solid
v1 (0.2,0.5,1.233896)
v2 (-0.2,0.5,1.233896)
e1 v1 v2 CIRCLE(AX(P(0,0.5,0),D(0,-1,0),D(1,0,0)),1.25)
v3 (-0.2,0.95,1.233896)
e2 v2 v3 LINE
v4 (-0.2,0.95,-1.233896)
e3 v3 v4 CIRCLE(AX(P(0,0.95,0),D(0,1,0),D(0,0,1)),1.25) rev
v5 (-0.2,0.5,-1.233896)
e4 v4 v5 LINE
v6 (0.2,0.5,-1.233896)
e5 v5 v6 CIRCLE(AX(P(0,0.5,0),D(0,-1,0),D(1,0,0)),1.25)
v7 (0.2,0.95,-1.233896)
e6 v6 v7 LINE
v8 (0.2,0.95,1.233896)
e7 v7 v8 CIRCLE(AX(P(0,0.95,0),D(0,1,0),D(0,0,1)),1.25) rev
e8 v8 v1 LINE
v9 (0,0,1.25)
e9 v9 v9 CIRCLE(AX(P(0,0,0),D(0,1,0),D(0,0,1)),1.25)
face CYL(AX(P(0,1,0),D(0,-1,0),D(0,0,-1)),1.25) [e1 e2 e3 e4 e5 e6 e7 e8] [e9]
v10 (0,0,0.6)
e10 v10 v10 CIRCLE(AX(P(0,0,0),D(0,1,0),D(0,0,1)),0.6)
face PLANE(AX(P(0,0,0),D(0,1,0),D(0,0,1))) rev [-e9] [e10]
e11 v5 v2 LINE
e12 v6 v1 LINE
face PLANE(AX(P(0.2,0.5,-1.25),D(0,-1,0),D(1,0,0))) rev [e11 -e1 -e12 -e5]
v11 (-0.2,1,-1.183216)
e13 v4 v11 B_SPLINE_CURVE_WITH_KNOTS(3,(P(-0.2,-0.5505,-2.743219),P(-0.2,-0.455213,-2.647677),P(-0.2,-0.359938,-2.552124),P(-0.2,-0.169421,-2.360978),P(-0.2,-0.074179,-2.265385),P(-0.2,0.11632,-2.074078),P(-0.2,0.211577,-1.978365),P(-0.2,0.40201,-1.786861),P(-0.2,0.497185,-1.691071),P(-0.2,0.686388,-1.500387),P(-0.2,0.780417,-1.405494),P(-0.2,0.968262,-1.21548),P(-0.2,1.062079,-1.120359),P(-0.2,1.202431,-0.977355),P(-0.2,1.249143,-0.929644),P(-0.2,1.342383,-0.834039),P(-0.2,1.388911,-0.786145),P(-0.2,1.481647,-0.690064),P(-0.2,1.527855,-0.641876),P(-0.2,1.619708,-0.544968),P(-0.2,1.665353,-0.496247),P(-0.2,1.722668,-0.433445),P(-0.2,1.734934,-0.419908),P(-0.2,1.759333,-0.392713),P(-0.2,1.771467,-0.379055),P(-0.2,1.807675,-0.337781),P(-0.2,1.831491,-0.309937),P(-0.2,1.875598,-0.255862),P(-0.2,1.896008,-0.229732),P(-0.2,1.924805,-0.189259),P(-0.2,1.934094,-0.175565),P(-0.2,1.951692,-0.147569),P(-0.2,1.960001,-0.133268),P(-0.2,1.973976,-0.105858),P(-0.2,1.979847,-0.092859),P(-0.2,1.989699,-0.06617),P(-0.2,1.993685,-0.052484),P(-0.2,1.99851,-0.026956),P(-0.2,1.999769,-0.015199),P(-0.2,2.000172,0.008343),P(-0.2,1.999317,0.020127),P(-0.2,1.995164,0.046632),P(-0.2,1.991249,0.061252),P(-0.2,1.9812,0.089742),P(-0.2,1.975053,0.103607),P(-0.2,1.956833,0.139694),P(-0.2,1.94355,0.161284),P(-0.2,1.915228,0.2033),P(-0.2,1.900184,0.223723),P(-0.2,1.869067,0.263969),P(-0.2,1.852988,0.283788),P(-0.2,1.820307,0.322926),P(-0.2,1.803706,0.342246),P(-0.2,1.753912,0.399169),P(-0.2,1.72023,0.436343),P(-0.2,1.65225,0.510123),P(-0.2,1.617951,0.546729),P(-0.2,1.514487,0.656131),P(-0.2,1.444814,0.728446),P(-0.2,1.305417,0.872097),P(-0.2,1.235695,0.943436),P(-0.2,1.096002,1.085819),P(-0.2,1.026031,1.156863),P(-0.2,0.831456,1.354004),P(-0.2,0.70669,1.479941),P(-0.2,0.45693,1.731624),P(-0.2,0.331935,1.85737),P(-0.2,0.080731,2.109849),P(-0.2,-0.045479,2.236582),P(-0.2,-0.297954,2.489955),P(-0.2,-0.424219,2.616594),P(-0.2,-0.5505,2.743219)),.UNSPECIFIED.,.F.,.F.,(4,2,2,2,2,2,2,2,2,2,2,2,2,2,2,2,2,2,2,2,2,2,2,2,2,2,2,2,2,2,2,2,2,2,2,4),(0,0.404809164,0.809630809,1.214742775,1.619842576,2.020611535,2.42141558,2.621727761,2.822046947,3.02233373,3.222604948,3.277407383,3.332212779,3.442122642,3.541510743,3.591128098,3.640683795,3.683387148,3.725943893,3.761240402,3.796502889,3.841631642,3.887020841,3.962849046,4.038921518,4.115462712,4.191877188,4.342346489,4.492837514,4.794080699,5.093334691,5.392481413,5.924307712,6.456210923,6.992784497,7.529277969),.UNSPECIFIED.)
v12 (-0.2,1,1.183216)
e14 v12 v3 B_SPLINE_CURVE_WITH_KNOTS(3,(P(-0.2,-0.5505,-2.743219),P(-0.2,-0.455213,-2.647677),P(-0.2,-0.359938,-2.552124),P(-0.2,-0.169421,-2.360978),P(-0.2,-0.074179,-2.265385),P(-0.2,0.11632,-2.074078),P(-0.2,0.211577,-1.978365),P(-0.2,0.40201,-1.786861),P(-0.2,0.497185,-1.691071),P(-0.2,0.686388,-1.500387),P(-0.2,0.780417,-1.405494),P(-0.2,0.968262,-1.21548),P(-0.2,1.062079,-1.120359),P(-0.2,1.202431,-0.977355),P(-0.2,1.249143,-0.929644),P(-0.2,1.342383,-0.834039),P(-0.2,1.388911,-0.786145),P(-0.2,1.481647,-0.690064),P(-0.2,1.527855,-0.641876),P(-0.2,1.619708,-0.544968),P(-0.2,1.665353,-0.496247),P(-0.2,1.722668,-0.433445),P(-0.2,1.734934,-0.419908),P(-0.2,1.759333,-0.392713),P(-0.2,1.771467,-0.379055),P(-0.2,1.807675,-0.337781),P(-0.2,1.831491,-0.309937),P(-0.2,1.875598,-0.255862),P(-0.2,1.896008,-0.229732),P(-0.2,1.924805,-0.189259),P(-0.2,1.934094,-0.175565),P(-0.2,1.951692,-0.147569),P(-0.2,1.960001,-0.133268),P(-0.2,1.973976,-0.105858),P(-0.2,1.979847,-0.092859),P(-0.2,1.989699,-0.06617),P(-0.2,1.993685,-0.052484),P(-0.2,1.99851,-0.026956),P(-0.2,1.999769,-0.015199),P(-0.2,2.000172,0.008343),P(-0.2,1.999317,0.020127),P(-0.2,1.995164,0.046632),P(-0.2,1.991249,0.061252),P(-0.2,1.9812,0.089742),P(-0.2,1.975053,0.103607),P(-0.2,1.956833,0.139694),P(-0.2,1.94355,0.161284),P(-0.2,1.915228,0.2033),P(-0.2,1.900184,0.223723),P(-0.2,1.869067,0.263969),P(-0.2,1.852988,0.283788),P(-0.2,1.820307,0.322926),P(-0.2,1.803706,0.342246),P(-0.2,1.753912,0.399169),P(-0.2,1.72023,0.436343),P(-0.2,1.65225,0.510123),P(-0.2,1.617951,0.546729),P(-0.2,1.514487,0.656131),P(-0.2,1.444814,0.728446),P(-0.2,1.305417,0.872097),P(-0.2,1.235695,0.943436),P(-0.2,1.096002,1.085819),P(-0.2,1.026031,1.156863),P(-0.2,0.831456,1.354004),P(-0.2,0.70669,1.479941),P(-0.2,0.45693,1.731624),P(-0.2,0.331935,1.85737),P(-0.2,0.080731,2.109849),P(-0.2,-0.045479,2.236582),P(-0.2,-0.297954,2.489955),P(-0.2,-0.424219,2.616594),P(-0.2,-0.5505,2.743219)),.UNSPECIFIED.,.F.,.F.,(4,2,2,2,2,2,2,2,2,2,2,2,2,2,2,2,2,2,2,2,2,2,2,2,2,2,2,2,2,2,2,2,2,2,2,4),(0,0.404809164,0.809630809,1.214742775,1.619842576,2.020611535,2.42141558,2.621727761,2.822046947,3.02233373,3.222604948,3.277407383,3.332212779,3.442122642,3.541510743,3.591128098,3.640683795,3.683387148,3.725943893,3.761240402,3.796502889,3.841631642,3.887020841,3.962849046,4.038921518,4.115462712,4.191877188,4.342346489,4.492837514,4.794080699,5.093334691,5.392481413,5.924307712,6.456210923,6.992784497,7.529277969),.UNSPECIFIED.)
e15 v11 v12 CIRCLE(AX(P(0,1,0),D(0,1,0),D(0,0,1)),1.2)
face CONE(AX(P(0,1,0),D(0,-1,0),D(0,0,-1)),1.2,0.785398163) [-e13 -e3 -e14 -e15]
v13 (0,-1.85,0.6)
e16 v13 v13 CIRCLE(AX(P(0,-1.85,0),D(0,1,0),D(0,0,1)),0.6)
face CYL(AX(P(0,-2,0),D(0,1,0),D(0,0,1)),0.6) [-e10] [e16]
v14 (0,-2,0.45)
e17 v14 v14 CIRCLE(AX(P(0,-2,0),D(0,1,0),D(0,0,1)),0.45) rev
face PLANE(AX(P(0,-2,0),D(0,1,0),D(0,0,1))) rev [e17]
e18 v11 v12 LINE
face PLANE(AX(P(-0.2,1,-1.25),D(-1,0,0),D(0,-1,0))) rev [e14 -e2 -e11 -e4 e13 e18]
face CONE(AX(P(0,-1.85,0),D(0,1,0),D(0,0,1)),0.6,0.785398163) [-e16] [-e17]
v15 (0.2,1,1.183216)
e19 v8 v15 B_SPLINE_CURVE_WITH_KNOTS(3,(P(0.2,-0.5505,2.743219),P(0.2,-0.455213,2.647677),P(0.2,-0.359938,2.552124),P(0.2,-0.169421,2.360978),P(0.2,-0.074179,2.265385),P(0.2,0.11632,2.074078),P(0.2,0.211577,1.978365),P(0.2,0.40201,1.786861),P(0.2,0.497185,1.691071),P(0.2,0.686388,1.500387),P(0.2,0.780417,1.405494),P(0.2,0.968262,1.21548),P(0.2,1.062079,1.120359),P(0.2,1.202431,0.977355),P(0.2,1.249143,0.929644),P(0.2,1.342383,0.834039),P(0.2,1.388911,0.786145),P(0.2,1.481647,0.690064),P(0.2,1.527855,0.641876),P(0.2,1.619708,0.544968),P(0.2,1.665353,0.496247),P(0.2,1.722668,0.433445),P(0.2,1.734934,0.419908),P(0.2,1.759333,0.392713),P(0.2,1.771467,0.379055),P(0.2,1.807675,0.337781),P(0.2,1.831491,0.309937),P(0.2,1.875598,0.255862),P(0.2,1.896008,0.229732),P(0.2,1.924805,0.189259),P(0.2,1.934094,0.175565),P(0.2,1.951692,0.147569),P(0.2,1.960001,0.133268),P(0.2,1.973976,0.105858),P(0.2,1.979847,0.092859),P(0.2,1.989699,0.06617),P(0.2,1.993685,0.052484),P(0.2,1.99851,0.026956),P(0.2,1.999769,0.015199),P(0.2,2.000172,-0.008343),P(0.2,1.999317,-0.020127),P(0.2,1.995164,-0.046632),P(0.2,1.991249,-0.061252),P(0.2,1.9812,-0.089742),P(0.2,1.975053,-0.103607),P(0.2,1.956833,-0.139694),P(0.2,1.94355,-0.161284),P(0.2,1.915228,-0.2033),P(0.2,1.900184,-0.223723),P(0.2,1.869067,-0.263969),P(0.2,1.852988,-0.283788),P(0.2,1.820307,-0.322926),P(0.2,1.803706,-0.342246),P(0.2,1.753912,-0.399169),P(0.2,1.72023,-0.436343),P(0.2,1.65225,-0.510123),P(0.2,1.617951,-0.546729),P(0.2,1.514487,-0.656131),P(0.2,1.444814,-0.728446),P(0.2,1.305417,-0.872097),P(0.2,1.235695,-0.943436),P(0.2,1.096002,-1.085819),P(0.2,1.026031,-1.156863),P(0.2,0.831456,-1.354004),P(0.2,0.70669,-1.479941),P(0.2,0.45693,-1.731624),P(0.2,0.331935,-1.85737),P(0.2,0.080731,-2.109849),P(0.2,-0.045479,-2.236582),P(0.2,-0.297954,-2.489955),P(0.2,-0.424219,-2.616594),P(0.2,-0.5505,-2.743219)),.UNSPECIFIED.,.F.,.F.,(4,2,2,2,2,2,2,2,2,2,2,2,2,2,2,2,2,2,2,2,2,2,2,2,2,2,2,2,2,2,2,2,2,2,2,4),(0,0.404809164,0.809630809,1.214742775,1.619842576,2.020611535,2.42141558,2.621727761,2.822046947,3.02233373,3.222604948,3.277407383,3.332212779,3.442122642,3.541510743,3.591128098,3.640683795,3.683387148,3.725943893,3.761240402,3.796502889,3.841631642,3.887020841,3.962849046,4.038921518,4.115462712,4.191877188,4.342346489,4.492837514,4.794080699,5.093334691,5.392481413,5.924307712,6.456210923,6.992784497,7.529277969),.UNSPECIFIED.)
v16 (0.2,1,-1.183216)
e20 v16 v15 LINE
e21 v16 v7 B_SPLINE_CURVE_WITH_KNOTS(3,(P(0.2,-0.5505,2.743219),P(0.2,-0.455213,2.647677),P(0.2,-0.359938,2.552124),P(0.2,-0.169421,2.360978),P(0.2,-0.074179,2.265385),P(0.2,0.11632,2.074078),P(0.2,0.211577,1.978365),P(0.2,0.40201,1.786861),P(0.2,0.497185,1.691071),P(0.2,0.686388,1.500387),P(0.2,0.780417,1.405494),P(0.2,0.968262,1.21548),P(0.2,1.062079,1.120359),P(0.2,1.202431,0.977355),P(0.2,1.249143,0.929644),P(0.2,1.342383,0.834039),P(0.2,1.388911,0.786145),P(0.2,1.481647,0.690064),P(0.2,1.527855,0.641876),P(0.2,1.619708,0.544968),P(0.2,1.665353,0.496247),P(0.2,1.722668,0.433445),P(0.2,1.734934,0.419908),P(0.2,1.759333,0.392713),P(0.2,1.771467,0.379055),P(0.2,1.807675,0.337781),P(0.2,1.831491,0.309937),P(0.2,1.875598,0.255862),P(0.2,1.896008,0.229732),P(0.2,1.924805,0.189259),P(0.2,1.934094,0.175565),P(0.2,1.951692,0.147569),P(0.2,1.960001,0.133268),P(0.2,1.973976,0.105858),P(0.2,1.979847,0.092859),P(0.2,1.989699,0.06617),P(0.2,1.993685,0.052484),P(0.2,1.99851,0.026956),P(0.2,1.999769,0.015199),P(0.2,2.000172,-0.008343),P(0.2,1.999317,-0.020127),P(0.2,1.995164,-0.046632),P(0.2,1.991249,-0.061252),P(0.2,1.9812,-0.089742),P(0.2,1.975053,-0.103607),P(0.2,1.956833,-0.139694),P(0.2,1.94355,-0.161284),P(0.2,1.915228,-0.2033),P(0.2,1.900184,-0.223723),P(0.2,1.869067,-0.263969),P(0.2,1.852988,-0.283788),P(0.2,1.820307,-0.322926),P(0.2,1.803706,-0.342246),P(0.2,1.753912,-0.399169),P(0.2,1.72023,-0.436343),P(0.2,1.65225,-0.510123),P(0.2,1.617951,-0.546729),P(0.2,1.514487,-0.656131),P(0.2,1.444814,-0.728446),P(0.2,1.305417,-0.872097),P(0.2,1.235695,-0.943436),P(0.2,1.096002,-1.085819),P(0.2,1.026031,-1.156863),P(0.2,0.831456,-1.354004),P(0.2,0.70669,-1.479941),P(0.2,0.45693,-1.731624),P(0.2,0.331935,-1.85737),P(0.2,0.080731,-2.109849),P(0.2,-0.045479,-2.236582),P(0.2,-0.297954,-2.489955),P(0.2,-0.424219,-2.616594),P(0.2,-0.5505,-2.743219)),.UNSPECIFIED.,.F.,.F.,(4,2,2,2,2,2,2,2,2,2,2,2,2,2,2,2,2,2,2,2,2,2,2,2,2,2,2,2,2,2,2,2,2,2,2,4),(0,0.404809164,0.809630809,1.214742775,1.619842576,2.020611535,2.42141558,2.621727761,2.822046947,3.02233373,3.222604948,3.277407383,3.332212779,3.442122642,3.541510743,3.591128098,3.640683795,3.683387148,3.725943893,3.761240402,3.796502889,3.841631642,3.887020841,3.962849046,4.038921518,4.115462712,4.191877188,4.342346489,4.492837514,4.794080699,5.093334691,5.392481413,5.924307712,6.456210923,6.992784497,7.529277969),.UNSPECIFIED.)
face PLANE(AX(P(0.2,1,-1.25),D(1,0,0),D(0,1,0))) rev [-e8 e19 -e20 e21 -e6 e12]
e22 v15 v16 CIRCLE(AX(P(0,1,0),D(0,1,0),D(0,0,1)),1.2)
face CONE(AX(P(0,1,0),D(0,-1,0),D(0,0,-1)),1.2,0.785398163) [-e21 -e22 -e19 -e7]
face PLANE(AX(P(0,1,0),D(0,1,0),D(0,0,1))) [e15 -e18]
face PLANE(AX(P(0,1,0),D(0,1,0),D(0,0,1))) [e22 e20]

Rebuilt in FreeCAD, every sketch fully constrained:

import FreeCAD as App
import Part
import Sketcher
from FreeCAD import Vector


def edges_at(feature, points):
    """Names of the edges that pass closest to the given points."""
    edges = feature.Shape.Edges
    near = lambda p: min(range(len(edges)), key=lambda i: edges[i].distToShape(Part.Vertex(*p))[0])
    return sorted({f"Edge{near(p) + 1}" for p in points})


def add_polygon(sketch, points):
    """Adds a closed chain of lines whose ends are joined by coincident constraints."""
    first, n = sketch.GeometryCount, len(points)
    for a, b in zip(points, points[1:] + points[:1]):
        sketch.addGeometry(Part.LineSegment(App.Vector(*a, 0), App.Vector(*b, 0)), False)
    for i in range(n):
        sketch.addConstraint(Sketcher.Constraint("Coincident", first + i, 2, first + (i + 1) % n, 1))

doc = App.newDocument("Part")
params = doc.addObject("Spreadsheet::Sheet", "Params")
for row, (alias, value) in enumerate([
    ("sketch1_diameter", "2.5 mm"),
    ("pad1_length", "1 mm"),
    ("sketch2_diameter", "1.2 mm"),
    ("pad2_length", "2 mm"),
    ("chamfer_size", "0.05 mm"),
    ("chamfer2_size", "0.15 mm"),
    ("sketch3_width", "0.4 mm"),
    ("sketch3_height", "0.5 mm"),
], start=1):
    params.set(f"A{row}", alias)
    params.set(f"B{row}", "=" + value)
    params.setAlias(f"B{row}", alias)

body = doc.addObject("PartDesign::Body", "Body")

sketch1 = doc.addObject("Sketcher::SketchObject", "Sketch")
body.addObject(sketch1)
sketch1.AttachmentSupport = (doc.XZ_Plane, [""])
sketch1.MapMode = "FlatFace"
sketch1.addGeometry(Part.Circle(Vector(0, 0, 0), Vector(0, 0, 1), 1.2), False)
sketch1.addConstraint([
    Sketcher.Constraint("Coincident", 0, 3, -1, 1),
    Sketcher.Constraint("Diameter", 0, 2.5),
])
sketch1.setExpression("Constraints[1]", "Params.sketch1_diameter")
pad1 = doc.addObject("PartDesign::Pad", "Pad")
body.addObject(pad1)
pad1.Profile = sketch1
pad1.setExpression("Length", "Params.pad1_length")
pad1.Reversed = True

sketch2 = doc.addObject("Sketcher::SketchObject", "Sketch001")
body.addObject(sketch2)
sketch2.AttachmentSupport = (doc.XZ_Plane, [""])
sketch2.MapMode = "FlatFace"
sketch2.addGeometry(Part.Circle(Vector(0, 0, 0), Vector(0, 0, 1), 0.6), False)
sketch2.addConstraint([
    Sketcher.Constraint("Coincident", 0, 3, -1, 1),
    Sketcher.Constraint("Diameter", 0, 1.2),
])
sketch2.setExpression("Constraints[1]", "Params.sketch2_diameter")
pad2 = doc.addObject("PartDesign::Pad", "Pad001")
body.addObject(pad2)
pad2.Profile = sketch2
pad2.setExpression("Length", "Params.pad2_length")
doc.recompute()

chamfer = doc.addObject("PartDesign::Chamfer", "Chamfer")
body.addObject(chamfer)
chamfer.Base = (pad2, edges_at(pad2, [(-1.25, 1, 0)]))
chamfer.setExpression("Size", "Params.chamfer_size")
doc.recompute()

chamfer2 = doc.addObject("PartDesign::Chamfer", "Chamfer001")
body.addObject(chamfer2)
chamfer2.Base = (chamfer, edges_at(chamfer, [(-0.6, -2, 0)]))
chamfer2.setExpression("Size", "Params.chamfer2_size")

sketch3 = doc.addObject("Sketcher::SketchObject", "Sketch002")
body.addObject(sketch3)
sketch3.AttachmentSupport = (doc.XY_Plane, [""])
sketch3.MapMode = "FlatFace"
add_polygon(sketch3, [(0.2, 1), (-0.2, 1), (-0.2, 0.5), (0.2, 0.5)])
sketch3.addConstraint([
    Sketcher.Constraint("Horizontal", 0),
    Sketcher.Constraint("Vertical", 1),
    Sketcher.Constraint("Horizontal", 2),
    Sketcher.Constraint("Vertical", 3),
    Sketcher.Constraint("DistanceX", 0, 2, 0, 1, 0.4),
    Sketcher.Constraint("DistanceY", 1, 2, 1, 1, 0.5),
    Sketcher.Constraint("DistanceY", -1, 1, 0, 2, 1.0),
    Sketcher.Constraint("DistanceX", 0, 2, -1, 1, 0.2),
])
sketch3.setExpression("Constraints[8]", "Params.sketch3_width")
sketch3.setExpression("Constraints[9]", "Params.sketch3_height")
pocket1 = doc.addObject("PartDesign::Pocket", "Pocket")
body.addObject(pocket1)
pocket1.Profile = sketch3
pocket1.Type = "ThroughAll"
pocket1.Midplane = True

doc.recompute()
